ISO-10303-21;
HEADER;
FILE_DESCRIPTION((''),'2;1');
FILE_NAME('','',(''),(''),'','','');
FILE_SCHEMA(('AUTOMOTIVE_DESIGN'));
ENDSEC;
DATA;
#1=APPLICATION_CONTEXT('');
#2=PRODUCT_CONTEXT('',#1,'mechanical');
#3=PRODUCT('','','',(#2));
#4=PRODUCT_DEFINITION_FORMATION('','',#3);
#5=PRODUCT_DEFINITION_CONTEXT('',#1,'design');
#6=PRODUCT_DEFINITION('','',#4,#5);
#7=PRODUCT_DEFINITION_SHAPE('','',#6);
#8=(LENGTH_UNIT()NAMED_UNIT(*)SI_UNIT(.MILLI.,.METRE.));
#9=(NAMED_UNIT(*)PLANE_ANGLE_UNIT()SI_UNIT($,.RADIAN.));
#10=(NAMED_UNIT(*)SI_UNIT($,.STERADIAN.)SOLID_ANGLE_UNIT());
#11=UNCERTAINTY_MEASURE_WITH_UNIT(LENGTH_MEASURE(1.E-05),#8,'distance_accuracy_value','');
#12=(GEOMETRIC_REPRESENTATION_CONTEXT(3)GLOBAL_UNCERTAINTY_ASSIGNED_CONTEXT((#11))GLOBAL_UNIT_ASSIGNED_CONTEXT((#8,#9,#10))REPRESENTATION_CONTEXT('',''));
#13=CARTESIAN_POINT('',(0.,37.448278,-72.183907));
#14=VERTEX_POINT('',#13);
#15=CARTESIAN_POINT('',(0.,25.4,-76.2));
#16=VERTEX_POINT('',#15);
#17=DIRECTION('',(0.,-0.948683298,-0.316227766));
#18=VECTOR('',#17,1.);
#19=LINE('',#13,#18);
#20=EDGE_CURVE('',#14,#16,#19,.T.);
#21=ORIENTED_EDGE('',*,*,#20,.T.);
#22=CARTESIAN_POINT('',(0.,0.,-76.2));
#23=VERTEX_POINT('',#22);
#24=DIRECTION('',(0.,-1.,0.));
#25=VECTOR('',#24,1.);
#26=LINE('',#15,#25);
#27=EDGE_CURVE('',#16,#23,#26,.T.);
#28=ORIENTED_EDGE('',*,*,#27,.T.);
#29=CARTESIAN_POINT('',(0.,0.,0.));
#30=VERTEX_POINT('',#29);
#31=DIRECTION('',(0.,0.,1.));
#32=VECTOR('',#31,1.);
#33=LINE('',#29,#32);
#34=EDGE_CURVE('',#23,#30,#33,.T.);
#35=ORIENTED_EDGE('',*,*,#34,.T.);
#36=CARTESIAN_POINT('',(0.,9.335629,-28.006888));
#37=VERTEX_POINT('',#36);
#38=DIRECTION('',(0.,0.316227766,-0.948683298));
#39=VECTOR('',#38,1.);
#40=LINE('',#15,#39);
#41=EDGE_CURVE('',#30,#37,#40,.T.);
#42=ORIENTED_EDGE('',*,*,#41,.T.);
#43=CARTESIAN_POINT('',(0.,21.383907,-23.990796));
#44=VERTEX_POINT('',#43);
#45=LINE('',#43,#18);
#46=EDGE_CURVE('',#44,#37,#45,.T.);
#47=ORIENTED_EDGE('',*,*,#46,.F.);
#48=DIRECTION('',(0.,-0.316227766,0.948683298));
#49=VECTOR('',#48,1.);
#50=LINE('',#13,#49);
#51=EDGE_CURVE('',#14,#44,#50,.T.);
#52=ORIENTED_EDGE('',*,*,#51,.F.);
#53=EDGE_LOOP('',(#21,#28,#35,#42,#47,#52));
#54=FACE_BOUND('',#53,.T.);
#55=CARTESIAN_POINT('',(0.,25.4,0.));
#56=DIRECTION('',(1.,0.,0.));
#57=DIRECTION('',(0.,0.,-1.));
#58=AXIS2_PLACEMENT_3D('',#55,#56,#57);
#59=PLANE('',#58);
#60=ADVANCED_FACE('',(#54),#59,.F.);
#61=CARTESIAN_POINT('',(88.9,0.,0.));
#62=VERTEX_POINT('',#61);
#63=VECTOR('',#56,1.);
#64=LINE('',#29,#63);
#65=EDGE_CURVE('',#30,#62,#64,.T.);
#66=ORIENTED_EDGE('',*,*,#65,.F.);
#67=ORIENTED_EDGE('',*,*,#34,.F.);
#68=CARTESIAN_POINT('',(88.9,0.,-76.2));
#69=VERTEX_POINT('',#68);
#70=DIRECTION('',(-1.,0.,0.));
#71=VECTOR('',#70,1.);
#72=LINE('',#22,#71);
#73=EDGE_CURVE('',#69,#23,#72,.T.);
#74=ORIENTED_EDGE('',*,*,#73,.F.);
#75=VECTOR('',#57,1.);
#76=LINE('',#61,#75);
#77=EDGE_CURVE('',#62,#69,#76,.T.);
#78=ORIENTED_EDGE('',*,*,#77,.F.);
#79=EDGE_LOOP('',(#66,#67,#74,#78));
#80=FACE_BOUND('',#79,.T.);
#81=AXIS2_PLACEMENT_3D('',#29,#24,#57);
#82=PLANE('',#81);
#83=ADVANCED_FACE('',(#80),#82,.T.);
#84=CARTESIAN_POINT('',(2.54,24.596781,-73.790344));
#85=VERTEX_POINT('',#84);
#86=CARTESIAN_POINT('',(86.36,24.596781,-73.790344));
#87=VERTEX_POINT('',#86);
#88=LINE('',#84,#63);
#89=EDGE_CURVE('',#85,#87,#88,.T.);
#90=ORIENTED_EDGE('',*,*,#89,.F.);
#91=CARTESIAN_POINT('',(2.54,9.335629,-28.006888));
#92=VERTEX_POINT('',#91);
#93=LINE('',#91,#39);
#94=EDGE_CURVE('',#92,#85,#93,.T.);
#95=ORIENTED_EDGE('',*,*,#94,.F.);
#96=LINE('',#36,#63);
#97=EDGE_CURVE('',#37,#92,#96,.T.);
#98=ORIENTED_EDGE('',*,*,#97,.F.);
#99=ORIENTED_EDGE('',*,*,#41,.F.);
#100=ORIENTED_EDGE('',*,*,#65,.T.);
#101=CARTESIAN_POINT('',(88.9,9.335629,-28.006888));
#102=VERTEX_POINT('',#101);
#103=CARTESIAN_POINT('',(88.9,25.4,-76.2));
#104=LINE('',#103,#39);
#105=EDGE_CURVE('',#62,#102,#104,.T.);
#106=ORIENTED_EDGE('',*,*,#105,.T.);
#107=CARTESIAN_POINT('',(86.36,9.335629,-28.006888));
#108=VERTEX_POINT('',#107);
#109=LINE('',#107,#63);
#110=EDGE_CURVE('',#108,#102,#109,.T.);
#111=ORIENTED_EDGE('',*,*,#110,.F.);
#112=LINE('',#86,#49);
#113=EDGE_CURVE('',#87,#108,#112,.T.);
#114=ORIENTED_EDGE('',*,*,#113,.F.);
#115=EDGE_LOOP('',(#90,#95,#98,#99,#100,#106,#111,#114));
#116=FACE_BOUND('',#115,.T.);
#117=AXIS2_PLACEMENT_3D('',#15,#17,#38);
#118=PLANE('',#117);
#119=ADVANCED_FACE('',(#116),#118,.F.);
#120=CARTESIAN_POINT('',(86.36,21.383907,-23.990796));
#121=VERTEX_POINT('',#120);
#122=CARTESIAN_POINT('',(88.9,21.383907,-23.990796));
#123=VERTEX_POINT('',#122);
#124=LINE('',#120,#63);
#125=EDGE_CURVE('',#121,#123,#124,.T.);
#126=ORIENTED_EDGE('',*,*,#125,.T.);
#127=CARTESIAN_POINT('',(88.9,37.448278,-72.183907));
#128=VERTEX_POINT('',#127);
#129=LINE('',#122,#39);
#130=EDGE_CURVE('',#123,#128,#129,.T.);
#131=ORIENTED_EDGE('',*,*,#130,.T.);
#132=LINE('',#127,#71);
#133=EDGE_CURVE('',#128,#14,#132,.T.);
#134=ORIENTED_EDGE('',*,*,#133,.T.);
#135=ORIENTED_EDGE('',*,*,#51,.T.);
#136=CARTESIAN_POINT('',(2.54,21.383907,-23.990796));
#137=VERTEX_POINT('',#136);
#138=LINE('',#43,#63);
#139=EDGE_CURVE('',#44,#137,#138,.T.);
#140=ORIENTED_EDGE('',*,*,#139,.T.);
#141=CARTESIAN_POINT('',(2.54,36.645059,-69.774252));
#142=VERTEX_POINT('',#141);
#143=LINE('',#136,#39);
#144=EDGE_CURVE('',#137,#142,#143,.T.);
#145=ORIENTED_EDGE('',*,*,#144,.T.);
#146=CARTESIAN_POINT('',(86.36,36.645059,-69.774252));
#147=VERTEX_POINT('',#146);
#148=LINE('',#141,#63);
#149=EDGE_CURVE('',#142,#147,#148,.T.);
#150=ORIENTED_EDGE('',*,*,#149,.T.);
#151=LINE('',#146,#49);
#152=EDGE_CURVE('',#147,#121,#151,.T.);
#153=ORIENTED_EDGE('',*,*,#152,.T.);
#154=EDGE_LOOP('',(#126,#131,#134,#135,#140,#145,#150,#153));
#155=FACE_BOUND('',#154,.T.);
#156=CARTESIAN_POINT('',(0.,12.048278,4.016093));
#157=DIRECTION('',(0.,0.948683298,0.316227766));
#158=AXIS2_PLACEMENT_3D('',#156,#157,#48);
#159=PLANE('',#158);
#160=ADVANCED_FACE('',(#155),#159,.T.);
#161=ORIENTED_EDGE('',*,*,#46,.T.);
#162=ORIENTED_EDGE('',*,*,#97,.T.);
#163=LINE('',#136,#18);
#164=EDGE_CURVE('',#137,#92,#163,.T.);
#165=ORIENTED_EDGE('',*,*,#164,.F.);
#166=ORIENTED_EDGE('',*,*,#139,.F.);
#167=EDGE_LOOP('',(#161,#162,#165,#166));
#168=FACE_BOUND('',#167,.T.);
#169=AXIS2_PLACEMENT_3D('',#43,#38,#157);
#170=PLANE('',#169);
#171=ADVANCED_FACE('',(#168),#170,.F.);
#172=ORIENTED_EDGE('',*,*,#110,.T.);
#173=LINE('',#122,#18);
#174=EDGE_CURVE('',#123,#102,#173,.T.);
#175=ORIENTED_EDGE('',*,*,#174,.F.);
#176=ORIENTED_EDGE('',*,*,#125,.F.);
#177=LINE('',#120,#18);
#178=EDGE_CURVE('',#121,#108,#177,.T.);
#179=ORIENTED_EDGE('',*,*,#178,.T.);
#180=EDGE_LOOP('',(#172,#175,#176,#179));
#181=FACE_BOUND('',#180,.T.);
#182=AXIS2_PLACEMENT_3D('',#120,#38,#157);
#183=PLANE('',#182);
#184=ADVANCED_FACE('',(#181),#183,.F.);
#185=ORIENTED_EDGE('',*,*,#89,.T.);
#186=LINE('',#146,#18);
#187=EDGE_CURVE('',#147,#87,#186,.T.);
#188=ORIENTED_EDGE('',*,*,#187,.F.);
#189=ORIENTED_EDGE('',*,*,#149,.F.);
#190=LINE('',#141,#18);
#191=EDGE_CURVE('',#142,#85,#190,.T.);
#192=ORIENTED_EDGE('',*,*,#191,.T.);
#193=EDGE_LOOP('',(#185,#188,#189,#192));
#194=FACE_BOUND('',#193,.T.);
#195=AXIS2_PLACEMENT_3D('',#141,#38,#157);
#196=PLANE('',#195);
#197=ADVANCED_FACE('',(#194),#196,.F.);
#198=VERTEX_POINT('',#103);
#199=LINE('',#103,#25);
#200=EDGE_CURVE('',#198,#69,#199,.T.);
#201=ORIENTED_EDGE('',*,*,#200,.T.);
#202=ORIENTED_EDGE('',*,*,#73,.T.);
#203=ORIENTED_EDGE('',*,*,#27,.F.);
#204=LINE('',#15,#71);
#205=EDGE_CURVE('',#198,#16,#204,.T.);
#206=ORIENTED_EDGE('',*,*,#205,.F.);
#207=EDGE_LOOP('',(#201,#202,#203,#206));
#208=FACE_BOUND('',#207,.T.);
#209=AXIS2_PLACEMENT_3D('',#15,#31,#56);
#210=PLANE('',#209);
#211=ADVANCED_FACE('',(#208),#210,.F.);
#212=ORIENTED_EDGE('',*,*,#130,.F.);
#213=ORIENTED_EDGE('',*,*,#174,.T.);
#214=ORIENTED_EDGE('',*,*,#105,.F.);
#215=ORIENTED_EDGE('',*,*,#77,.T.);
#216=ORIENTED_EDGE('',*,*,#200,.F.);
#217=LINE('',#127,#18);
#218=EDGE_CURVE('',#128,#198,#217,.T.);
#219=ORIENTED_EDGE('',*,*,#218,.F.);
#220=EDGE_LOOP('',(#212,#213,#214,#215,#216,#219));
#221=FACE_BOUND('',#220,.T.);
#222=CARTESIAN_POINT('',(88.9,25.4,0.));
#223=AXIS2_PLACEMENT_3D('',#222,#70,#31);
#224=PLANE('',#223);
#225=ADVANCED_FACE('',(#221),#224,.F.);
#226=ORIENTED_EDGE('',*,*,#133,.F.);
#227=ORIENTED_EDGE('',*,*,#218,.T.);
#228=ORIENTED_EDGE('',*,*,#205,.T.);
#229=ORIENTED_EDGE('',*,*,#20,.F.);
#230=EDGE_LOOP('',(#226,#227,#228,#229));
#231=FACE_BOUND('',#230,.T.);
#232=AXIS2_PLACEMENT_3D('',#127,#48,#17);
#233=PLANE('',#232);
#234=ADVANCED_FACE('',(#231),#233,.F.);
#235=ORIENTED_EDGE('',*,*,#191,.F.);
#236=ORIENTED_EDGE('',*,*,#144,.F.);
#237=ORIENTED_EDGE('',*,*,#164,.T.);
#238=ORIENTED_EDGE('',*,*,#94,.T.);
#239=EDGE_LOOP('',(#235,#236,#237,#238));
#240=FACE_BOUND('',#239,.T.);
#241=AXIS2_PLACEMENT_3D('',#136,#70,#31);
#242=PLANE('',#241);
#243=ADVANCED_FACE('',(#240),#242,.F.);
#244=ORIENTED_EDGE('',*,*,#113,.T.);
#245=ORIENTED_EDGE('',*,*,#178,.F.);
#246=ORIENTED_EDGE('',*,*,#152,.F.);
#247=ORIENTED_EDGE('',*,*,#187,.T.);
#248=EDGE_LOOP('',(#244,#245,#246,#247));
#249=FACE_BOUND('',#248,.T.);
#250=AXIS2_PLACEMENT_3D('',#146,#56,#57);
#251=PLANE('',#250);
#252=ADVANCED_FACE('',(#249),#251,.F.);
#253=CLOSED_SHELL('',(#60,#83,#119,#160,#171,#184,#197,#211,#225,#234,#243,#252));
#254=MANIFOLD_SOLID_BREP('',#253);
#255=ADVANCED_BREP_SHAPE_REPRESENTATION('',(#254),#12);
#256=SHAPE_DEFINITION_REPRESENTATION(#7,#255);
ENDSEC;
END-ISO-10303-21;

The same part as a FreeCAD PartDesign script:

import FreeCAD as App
import Part
import Sketcher
from FreeCAD import Vector
Q = App.Units.Quantity

doc = App.newDocument("Part")
params = doc.addObject("Spreadsheet::Sheet", "Params")
for row, (alias, value) in enumerate([
    ("sketch1_height", "3 in"),
    ("sketch1_width", "3.5 in"),
    ("pad1_length", "1 in"),
    ("sketch2_width", "1 in"),
    ("sketch2_height", "3 in"),
    ("sketch3_height", "2 in"),
    ("sketch3_width", "0.1 in"),
    ("sketch3_width2", "3.3 in"),
    ("sketch3_height2", "1.9 in"),
    ("pad2_length", "0.5 in"),
], start=1):
    params.set(f"A{row}", alias)
    params.set(f"B{row}", "=" + value)
    params.setAlias(f"B{row}", alias)

body = doc.addObject("PartDesign::Body", "Body")

sketch1 = body.newObject("Sketcher::SketchObject", "Sketch")
sketch1.AttachmentSupport = (doc.getObject("XZ_Plane"), [""])
sketch1.MapMode = "FlatFace"
sketch1.addGeometry([
    Part.LineSegment(Vector(0, -76.2, 0), Vector(0, 0, 0)),
    Part.LineSegment(Vector(0, 0, 0), Vector(88.9, 0, 0)),
    Part.LineSegment(Vector(88.9, 0, 0), Vector(88.9, -76.2, 0)),
    Part.LineSegment(Vector(88.9, -76.2, 0), Vector(0, -76.2, 0)),
], False)
sketch1.addConstraint([
    Sketcher.Constraint("Coincident", 0, 2, 1, 1),
    Sketcher.Constraint("Coincident", 1, 2, 2, 1),
    Sketcher.Constraint("Coincident", 2, 2, 3, 1),
    Sketcher.Constraint("Coincident", 3, 2, 0, 1),
    Sketcher.Constraint("Vertical", 0),
    Sketcher.Constraint("Horizontal", 1),
    Sketcher.Constraint("Vertical", 2),
    Sketcher.Constraint("Horizontal", 3),
    Sketcher.Constraint("Coincident", 0, 2, -1, 1),
    Sketcher.Constraint("DistanceY", 0, 1, 0, 2, Q("3 in")),
    Sketcher.Constraint("DistanceX", 1, 1, 1, 2, Q("3.5 in")),
])
sketch1.setExpression("Constraints[9]", "Params.sketch1_height")
sketch1.setExpression("Constraints[10]", "Params.sketch1_width")
pad1 = body.newObject("PartDesign::Pad", "Pad")
pad1.Profile = sketch1
pad1.setExpression("Length", "Params.pad1_length")
pad1.Reversed = True

sketch2 = body.newObject("Sketcher::SketchObject", "Sketch001")
sketch2.AttachmentSupport = (doc.getObject("YZ_Plane"), [""])
sketch2.MapMode = "FlatFace"
sketch2.AttachmentOffset = App.Placement(Vector(0, 0, 3.5 * 25.4), App.Rotation())
sketch2.addGeometry([
    Part.LineSegment(Vector(0, 0, 0), Vector(25.4, -76.2, 0)),
    Part.LineSegment(Vector(25.4, -76.2, 0), Vector(25.4, 0, 0)),
    Part.LineSegment(Vector(25.4, 0, 0), Vector(0, 0, 0)),
], False)
sketch2.addConstraint([
    Sketcher.Constraint("Coincident", 0, 2, 1, 1),
    Sketcher.Constraint("Coincident", 1, 2, 2, 1),
    Sketcher.Constraint("Coincident", 2, 2, 0, 1),
    Sketcher.Constraint("Vertical", 1),
    Sketcher.Constraint("Horizontal", 2),
    Sketcher.Constraint("Coincident", 2, 2, -1, 1),
    Sketcher.Constraint("DistanceX", 2, 2, 2, 1, Q("1 in")),
    Sketcher.Constraint("DistanceY", 1, 1, 1, 2, Q("3 in")),
])
sketch2.setExpression("Constraints[6]", "Params.sketch2_width")
sketch2.setExpression("Constraints[7]", "Params.sketch2_height")
pocket1 = body.newObject("PartDesign::Pocket", "Pocket")
pocket1.Profile = sketch2
pocket1.Type = "ThroughAll"

sketch3 = body.newObject("Sketcher::SketchObject", "Sketch002")
sketch3.Placement = App.Placement(Vector(0, 0, 0), App.Rotation(Vector(1, 0, 0), Vector(0, 0.316227766, -0.948683298), Vector(0, 0.948683298, 0.316227766), "ZXY"))
sketch3.addGeometry([
    Part.LineSegment(Vector(0, 29.521853, 0), Vector(2.54, 29.521853, 0)),
    Part.LineSegment(Vector(2.54, 29.521853, 0), Vector(2.54, 77.781853, 0)),
    Part.LineSegment(Vector(2.54, 77.781853, 0), Vector(86.36, 77.781853, 0)),
    Part.LineSegment(Vector(86.36, 77.781853, 0), Vector(86.36, 29.521853, 0)),
    Part.LineSegment(Vector(86.36, 29.521853, 0), Vector(88.9, 29.521853, 0)),
    Part.LineSegment(Vector(88.9, 29.521853, 0), Vector(88.9, 80.321853, 0)),
    Part.LineSegment(Vector(88.9, 80.321853, 0), Vector(0, 80.321853, 0)),
    Part.LineSegment(Vector(0, 80.321853, 0), Vector(0, 29.521853, 0)),
], False)
sketch3.addConstraint([
    Sketcher.Constraint("Coincident", 0, 2, 1, 1),
    Sketcher.Constraint("Coincident", 1, 2, 2, 1),
    Sketcher.Constraint("Coincident", 2, 2, 3, 1),
    Sketcher.Constraint("Coincident", 3, 2, 4, 1),
    Sketcher.Constraint("Coincident", 4, 2, 5, 1),
    Sketcher.Constraint("Coincident", 5, 2, 6, 1),
    Sketcher.Constraint("Coincident", 6, 2, 7, 1),
    Sketcher.Constraint("Coincident", 7, 2, 0, 1),
    Sketcher.Constraint("Horizontal", 0),
    Sketcher.Constraint("Vertical", 1),
    Sketcher.Constraint("Horizontal", 2),
    Sketcher.Constraint("Vertical", 3),
    Sketcher.Constraint("Horizontal", 4),
    Sketcher.Constraint("Vertical", 5),
    Sketcher.Constraint("Horizontal", 6),
    Sketcher.Constraint("Vertical", 7),
    Sketcher.Constraint("PointOnObject", 6, 2, -2),
    Sketcher.Constraint("Horizontal", 0, 2, 3, 2),
    Sketcher.Constraint("Equal", 0, 4),
    Sketcher.Constraint("DistanceY", 5, 1, 5, 2, Q("2 in")),
    Sketcher.Constraint("DistanceX", 0, 1, 0, 2, Q("0.1 in")),
    Sketcher.Constraint("DistanceX", 2, 1, 2, 2, Q("3.3 in")),
    Sketcher.Constraint("DistanceY", 1, 1, 1, 2, Q("1.9 in")),
    Sketcher.Constraint("DistanceY", -1, 1, 0, 2, 29.521853),
])
sketch3.setExpression("Constraints[19]", "Params.sketch3_height")
sketch3.setExpression("Constraints[20]", "Params.sketch3_width")
sketch3.setExpression("Constraints[21]", "Params.sketch3_width2")
sketch3.setExpression("Constraints[22]", "Params.sketch3_height2")
pad2 = body.newObject("PartDesign::Pad", "Pad001")
pad2.Profile = sketch3
pad2.setExpression("Length", "Params.pad2_length")

doc.recompute()
